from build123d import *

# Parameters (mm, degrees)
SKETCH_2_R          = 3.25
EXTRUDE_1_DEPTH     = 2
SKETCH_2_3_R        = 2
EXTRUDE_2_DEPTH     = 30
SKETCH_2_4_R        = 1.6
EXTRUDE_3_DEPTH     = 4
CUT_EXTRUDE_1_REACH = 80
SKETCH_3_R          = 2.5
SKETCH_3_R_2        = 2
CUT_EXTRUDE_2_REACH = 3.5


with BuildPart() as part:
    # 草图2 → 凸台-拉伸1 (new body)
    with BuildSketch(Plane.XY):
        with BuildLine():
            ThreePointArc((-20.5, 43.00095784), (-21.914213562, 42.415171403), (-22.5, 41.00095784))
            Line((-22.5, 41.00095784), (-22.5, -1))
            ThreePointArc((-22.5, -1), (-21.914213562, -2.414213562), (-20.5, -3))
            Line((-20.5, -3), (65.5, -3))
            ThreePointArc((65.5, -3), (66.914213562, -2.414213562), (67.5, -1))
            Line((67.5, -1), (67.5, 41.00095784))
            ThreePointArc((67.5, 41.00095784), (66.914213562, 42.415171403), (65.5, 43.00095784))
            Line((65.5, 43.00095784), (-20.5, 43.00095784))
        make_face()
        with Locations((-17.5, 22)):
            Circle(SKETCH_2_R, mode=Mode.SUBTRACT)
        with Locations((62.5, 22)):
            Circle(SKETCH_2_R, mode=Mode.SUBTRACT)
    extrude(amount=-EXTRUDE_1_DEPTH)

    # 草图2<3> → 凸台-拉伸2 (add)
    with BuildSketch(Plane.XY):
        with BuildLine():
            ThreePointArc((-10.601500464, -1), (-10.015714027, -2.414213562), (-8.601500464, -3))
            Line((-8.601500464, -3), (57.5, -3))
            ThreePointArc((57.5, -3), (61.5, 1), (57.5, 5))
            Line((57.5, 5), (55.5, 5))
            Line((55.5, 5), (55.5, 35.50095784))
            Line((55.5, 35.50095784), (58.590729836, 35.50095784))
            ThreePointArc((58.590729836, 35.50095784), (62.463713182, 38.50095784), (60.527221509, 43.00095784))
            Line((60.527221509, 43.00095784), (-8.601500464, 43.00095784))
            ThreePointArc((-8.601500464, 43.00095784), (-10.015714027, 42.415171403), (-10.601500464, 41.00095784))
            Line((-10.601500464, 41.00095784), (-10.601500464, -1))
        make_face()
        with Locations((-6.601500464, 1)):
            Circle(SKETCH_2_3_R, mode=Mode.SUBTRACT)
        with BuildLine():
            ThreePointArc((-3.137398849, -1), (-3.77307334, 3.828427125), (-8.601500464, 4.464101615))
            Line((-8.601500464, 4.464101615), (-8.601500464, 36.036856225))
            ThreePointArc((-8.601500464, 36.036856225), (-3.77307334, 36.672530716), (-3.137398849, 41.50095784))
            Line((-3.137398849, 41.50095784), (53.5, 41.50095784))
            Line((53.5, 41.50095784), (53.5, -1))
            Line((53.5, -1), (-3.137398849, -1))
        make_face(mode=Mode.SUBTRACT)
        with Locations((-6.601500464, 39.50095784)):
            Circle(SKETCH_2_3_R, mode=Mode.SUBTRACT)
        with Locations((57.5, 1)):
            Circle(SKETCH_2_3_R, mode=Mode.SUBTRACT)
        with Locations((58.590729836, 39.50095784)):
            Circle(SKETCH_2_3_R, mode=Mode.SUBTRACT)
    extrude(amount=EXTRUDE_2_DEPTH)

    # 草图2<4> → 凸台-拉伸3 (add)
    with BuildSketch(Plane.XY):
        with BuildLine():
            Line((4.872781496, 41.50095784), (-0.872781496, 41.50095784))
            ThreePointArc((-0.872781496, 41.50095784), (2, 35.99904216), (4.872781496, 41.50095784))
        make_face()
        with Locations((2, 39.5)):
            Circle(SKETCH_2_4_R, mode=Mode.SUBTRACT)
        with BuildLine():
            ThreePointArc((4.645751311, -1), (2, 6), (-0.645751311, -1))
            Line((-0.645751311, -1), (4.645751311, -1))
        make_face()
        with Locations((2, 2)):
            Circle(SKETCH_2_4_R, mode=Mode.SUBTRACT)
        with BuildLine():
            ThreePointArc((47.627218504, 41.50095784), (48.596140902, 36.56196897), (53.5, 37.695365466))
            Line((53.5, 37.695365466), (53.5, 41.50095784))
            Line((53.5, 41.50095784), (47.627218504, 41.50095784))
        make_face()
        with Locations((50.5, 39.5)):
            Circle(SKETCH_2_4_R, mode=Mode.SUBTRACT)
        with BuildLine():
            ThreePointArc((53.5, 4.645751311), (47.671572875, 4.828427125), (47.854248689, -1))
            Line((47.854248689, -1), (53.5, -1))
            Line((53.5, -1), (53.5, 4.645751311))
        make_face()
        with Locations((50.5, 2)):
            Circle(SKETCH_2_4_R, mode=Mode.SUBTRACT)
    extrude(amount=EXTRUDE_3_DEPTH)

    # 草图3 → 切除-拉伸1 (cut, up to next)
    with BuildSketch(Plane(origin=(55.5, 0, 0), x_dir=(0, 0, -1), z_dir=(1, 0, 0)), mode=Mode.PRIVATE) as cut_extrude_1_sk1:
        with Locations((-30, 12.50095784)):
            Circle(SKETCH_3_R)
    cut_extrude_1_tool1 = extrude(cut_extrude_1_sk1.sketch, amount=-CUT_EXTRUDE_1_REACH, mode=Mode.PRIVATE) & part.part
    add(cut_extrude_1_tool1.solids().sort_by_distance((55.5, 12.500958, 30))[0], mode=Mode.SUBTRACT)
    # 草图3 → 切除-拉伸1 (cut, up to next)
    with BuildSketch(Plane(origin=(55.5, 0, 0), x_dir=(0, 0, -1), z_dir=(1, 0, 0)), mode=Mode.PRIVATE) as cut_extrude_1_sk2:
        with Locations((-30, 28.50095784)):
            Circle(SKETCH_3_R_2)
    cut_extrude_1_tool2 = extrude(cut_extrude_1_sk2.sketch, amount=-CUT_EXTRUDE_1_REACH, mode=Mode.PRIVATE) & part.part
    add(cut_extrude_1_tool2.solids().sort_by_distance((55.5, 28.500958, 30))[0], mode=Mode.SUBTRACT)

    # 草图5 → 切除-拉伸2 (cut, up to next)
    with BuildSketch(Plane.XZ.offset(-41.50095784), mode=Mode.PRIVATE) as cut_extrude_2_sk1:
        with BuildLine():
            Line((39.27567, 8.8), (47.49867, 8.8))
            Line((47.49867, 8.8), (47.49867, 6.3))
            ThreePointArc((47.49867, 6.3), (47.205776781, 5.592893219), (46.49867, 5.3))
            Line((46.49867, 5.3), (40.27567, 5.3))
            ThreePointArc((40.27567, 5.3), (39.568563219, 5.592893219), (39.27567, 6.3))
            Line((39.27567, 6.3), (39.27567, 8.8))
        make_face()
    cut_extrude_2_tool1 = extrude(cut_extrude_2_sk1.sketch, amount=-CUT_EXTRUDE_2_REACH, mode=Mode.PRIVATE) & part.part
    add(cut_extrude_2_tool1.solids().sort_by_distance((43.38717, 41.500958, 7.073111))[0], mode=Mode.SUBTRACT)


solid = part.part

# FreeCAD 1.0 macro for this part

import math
import FreeCAD as App
import Part
import Sketcher
from FreeCAD import Vector

doc = App.newDocument("Part")
body = doc.addObject("PartDesign::Body", "Body")

sketch1 = doc.addObject("Sketcher::SketchObject", "Sketch")
body.addObject(sketch1)
sketch1.AttachmentSupport = (doc.XY_Plane, [""])
sketch1.MapMode = "FlatFace"
sketch1.addGeometry([
    Part.ArcOfCircle(Part.Circle(Vector(-20.5, 41, 0), Vector(0, 0, 1), 2), math.radians(90), math.radians(180)),
    Part.LineSegment(Vector(-22.5, 41, 0), Vector(-22.5, -1, 0)),
    Part.ArcOfCircle(Part.Circle(Vector(-20.5, -1, 0), Vector(0, 0, 1), 2), math.radians(-180), math.radians(-90)),
    Part.LineSegment(Vector(-20.5, -3, 0), Vector(65.5, -3, 0)),
    Part.ArcOfCircle(Part.Circle(Vector(65.5, -1, 0), Vector(0, 0, 1), 2), math.radians(-90), math.radians(0)),
    Part.LineSegment(Vector(67.5, -1, 0), Vector(67.5, 41, 0)),
    Part.ArcOfCircle(Part.Circle(Vector(65.5, 41, 0), Vector(0, 0, 1), 2), math.radians(0), math.radians(90)),
    Part.LineSegment(Vector(65.5, 43, 0), Vector(-20.5, 43, 0)),
    Part.Circle(Vector(-17.5, 22, 0), Vector(0, 0, 1), 3.2),
    Part.Circle(Vector(62.5, 22, 0), Vector(0, 0, 1), 3.2),
], False)
sketch1.addConstraint([
    Sketcher.Constraint("Tangent", 0, 2, 1, 1),
    Sketcher.Constraint("Tangent", 1, 2, 2, 1),
    Sketcher.Constraint("Tangent", 2, 2, 3, 1),
    Sketcher.Constraint("Tangent", 3, 2, 4, 1),
    Sketcher.Constraint("Tangent", 4, 2, 5, 1),
    Sketcher.Constraint("Tangent", 5, 2, 6, 1),
    Sketcher.Constraint("Tangent", 6, 2, 7, 1),
    Sketcher.Constraint("Tangent", 7, 2, 0, 1),
    Sketcher.Constraint("Vertical", 1),
    Sketcher.Constraint("Horizontal", 3),
    Sketcher.Constraint("Vertical", 5),
    Sketcher.Constraint("Horizontal", 7),
    Sketcher.Constraint("Equal", 0, 2),
    Sketcher.Constraint("Equal", 2, 4),
    Sketcher.Constraint("Equal", 4, 6),
    Sketcher.Constraint("Equal", 8, 9),
    Sketcher.Constraint("Horizontal", 8, 3, 9, 3),
    Sketcher.Constraint("Radius", 0, 2.0),
    Sketcher.Constraint("Diameter", 8, 6.5),
    Sketcher.Constraint("DistanceX", 3, 1, 3, 2, 86.0),
    Sketcher.Constraint("DistanceY", 2, 3, -1, 1, 1.0),
    Sketcher.Constraint("DistanceY", -1, 1, 8, 3, 22.0),
    Sketcher.Constraint("DistanceX", 0, 3, 8, 3, 3.0),
    Sketcher.Constraint("DistanceX", 9, 3, 6, 3, 3.0),
    Sketcher.Constraint("DistanceX", 0, 3, -1, 1, 20.5),
    Sketcher.Constraint("DistanceY", 1, 2, 1, 1, 42.000958),
])
pad1 = doc.addObject("PartDesign::Pad", "Pad")
body.addObject(pad1)
pad1.Profile = sketch1
pad1.Length = 2
pad1.Reversed = True

sketch2 = doc.addObject("Sketcher::SketchObject", "Sketch001")
body.addObject(sketch2)
sketch2.AttachmentSupport = (doc.XY_Plane, [""])
sketch2.MapMode = "FlatFace"
sketch2.addGeometry([
    Part.ArcOfCircle(Part.Circle(Vector(-8.6, -1, 0), Vector(0, 0, 1), 2), math.radians(180), math.radians(270)),
    Part.LineSegment(Vector(-8.6, -3, 0), Vector(57.5, -3, 0)),
    Part.ArcOfCircle(Part.Circle(Vector(57.5, 1, 0), Vector(0, 0, 1), 4), math.radians(-90), math.radians(90)),
    Part.LineSegment(Vector(57.5, 5, 0), Vector(55.5, 5, 0)),
    Part.LineSegment(Vector(55.5, 5, 0), Vector(55.5, 35.5, 0)),
    Part.LineSegment(Vector(55.5, 35.5, 0), Vector(58.6, 35.5, 0)),
    Part.ArcOfCircle(Part.Circle(Vector(58.6, 39.5, 0), Vector(0, 0, 1), 4), math.radians(-90), math.radians(61)),
    Part.LineSegment(Vector(60.5, 43, 0), Vector(-8.6, 43, 0)),
    Part.ArcOfCircle(Part.Circle(Vector(-8.6, 41, 0), Vector(0, 0, 1), 2), math.radians(90), math.radians(180)),
    Part.LineSegment(Vector(-10.6, 41, 0), Vector(-10.6, -1, 0)),
    Part.Circle(Vector(-6.6, 1, 0), Vector(0, 0, 1), 2),
    Part.Circle(Vector(57.5, 1, 0), Vector(0, 0, 1), 2),
    Part.LineSegment(Vector(53.5, -1, 0), Vector(-3.1, -1, 0)),
    Part.ArcOfCircle(Part.Circle(Vector(-6.6, 1, 0), Vector(0, 0, 1), 4), math.radians(-30), math.radians(120)),
    Part.LineSegment(Vector(-8.6, 4.5, 0), Vector(-8.6, 36, 0)),
    Part.ArcOfCircle(Part.Circle(Vector(-6.6, 39.5, 0), Vector(0, 0, 1), 4), math.radians(-120), math.radians(30)),
    Part.LineSegment(Vector(-3.1, 41.5, 0), Vector(53.5, 41.5, 0)),
    Part.LineSegment(Vector(53.5, 41.5, 0), Vector(53.5, -1, 0)),
    Part.Circle(Vector(-6.6, 39.5, 0), Vector(0, 0, 1), 2),
    Part.Circle(Vector(58.6, 39.5, 0), Vector(0, 0, 1), 2),
], False)
sketch2.addConstraint([
    Sketcher.Constraint("Tangent", 0, 2, 1, 1),
    Sketcher.Constraint("Tangent", 1, 2, 2, 1),
    Sketcher.Constraint("Tangent", 2, 2, 3, 1),
    Sketcher.Constraint("Coincident", 3, 2, 4, 1),
    Sketcher.Constraint("Coincident", 4, 2, 5, 1),
    Sketcher.Constraint("Tangent", 5, 2, 6, 1),
    Sketcher.Constraint("Coincident", 6, 2, 7, 1),
    Sketcher.Constraint("Tangent", 7, 2, 8, 1),
    Sketcher.Constraint("Tangent", 8, 2, 9, 1),
    Sketcher.Constraint("Tangent", 9, 2, 0, 1),
    Sketcher.Constraint("Coincident", 12, 2, 13, 1),
    Sketcher.Constraint("Coincident", 13, 2, 14, 1),
    Sketcher.Constraint("Coincident", 14, 2, 15, 1),
    Sketcher.Constraint("Coincident", 15, 2, 16, 1),
    Sketcher.Constraint("Coincident", 16, 2, 17, 1),
    Sketcher.Constraint("Coincident", 17, 2, 12, 1),
    Sketcher.Constraint("Horizontal", 1),
    Sketcher.Constraint("Horizontal", 3),
    Sketcher.Constraint("Vertical", 4),
    Sketcher.Constraint("Horizontal", 5),
    Sketcher.Constraint("Horizontal", 7),
    Sketcher.Constraint("Vertical", 9),
    Sketcher.Constraint("Horizontal", 12),
    Sketcher.Constraint("Vertical", 14),
    Sketcher.Constraint("Horizontal", 16),
    Sketcher.Constraint("Vertical", 17),
    Sketcher.Constraint("Coincident", 11, 3, 2, 3),
    Sketcher.Constraint("Coincident", 13, 3, 10, 3),
    Sketcher.Constraint("Coincident", 18, 3, 15, 3),
    Sketcher.Constraint("Coincident", 19, 3, 6, 3),
    Sketcher.Constraint("Equal", 2, 6),
    Sketcher.Constraint("Equal", 0, 8),
    Sketcher.Constraint("Equal", 8, 10),
    Sketcher.Constraint("Equal", 10, 11),
    Sketcher.Constraint("Equal", 6, 13),
    Sketcher.Constraint("Equal", 13, 15),
    Sketcher.Constraint("Equal", 11, 18),
    Sketcher.Constraint("Equal", 18, 19),
    Sketcher.Constraint("Horizontal", 2, 3, 10, 3),
    Sketcher.Constraint("Horizontal", 6, 3, 15, 3),
    Sketcher.Constraint("Horizontal", 9, 2, 12, 2),
    Sketcher.Constraint("Vertical", 13, 3, 15, 3),
    Sketcher.Constraint("Vertical", 7, 2, 13, 2),
    Sketcher.Constraint("Vertical", 12, 2, 15, 2),
    Sketcher.Constraint("Diameter", 10, 4.0),
    Sketcher.Constraint("Radius", 2, 4.0),
    Sketcher.Constraint("DistanceX", 3, 2, 3, 1, 2.0),
    Sketcher.Constraint("DistanceY", 0, 3, -1, 1, 1.0),
    Sketcher.Constraint("DistanceX", 0, 3, 10, 3, 2.0),
    Sketcher.Constraint("DistanceX", 16, 2, 4, 2, 2.0),
    Sketcher.Constraint("DistanceX", -1, 1, 2, 3, 57.5),
    Sketcher.Constraint("DistanceY", 6, 3, 8, 3, 1.5),
    Sketcher.Constraint("DistanceX", 1, 1, 1, 2, 66.1015),
    Sketcher.Constraint("DistanceX", 5, 1, 5, 2, 3.09073),
    Sketcher.Constraint("DistanceY", 4, 1, 4, 2, 30.500958),
])
pad2 = doc.addObject("PartDesign::Pad", "Pad001")
body.addObject(pad2)
pad2.Profile = sketch2
pad2.Length = 30

sketch3 = doc.addObject("Sketcher::SketchObject", "Sketch002")
body.addObject(sketch3)
sketch3.AttachmentSupport = (doc.XY_Plane, [""])
sketch3.MapMode = "FlatFace"
sketch3.addGeometry([
    Part.LineSegment(Vector(4.9, 41.5, 0), Vector(-0.9, 41.5, 0)),
    Part.ArcOfCircle(Part.Circle(Vector(2, 39.5, 0), Vector(0, 0, 1), 3.5), math.radians(145), math.radians(395)),
    Part.Circle(Vector(2, 39.5, 0), Vector(0, 0, 1), 1.6),
    Part.ArcOfCircle(Part.Circle(Vector(2, 2, 0), Vector(0, 0, 1), 4), math.radians(-49), math.radians(229)),
    Part.LineSegment(Vector(-0.6, -1, 0), Vector(4.6, -1, 0)),
    Part.Circle(Vector(2, 2, 0), Vector(0, 0, 1), 1.6),
    Part.ArcOfCircle(Part.Circle(Vector(50.5, 39.5, 0), Vector(0, 0, 1), 3.5), math.radians(145), math.radians(329)),
    Part.LineSegment(Vector(53.5, 37.7, 0), Vector(53.5, 41.5, 0)),
    Part.LineSegment(Vector(53.5, 41.5, 0), Vector(47.6, 41.5, 0)),
    Part.Circle(Vector(50.5, 39.5, 0), Vector(0, 0, 1), 1.6),
    Part.ArcOfCircle(Part.Circle(Vector(50.5, 2, 0), Vector(0, 0, 1), 4), math.radians(41), math.radians(229)),
    Part.LineSegment(Vector(47.9, -1, 0), Vector(53.5, -1, 0)),
    Part.LineSegment(Vector(53.5, -1, 0), Vector(53.5, 4.6, 0)),
    Part.Circle(Vector(50.5, 2, 0), Vector(0, 0, 1), 1.6),
], False)
sketch3.addConstraint([
    Sketcher.Constraint("Coincident", 0, 1, 1, 2),
    Sketcher.Constraint("Coincident", 1, 1, 0, 2),
    Sketcher.Constraint("Coincident", 3, 1, 4, 2),
    Sketcher.Constraint("Coincident", 4, 1, 3, 2),
    Sketcher.Constraint("Coincident", 6, 2, 7, 1),
    Sketcher.Constraint("Coincident", 7, 2, 8, 1),
    Sketcher.Constraint("Coincident", 8, 2, 6, 1),
    Sketcher.Constraint("Coincident", 10, 2, 11, 1),
    Sketcher.Constraint("Coincident", 11, 2, 12, 1),
    Sketcher.Constraint("Coincident", 12, 2, 10, 1),
    Sketcher.Constraint("Horizontal", 0),
    Sketcher.Constraint("Horizontal", 4),
    Sketcher.Constraint("Vertical", 7),
    Sketcher.Constraint("Horizontal", 8),
    Sketcher.Constraint("Horizontal", 11),
    Sketcher.Constraint("Vertical", 12),
    Sketcher.Constraint("Coincident", 2, 3, 1, 3),
    Sketcher.Constraint("Coincident", 5, 3, 3, 3),
    Sketcher.Constraint("Coincident", 9, 3, 6, 3),
    Sketcher.Constraint("Coincident", 13, 3, 10, 3),
    Sketcher.Constraint("Equal", 2, 5),
    Sketcher.Constraint("Equal", 1, 6),
    Sketcher.Constraint("Equal", 5, 9),
    Sketcher.Constraint("Equal", 3, 10),
    Sketcher.Constraint("Equal", 9, 13),
    Sketcher.Constraint("Horizontal", 2, 3, 6, 3),
    Sketcher.Constraint("Horizontal", 5, 3, 10, 3),
    Sketcher.Constraint("Horizontal", 1, 1, 7, 2),
    Sketcher.Constraint("Horizontal", 4, 1, 10, 2),
    Sketcher.Constraint("Vertical", 2, 3, 3, 3),
    Sketcher.Constraint("Vertical", 9, 3, 10, 3),
    Sketcher.Constraint("Vertical", 7, 2, 11, 2),
    Sketcher.Constraint("Equal", 11, 12),
    Sketcher.Constraint("Radius", 3, 4.0),
    Sketcher.Constraint("Diameter", 2, 3.2),
    Sketcher.Constraint("DistanceX", -1, 1, 1, 3, 2.0),
    Sketcher.Constraint("DistanceY", -1, 1, 3, 3, 2.0),
    Sketcher.Constraint("DistanceY", 3, 1, -1, 1, 1.0),
    Sketcher.Constraint("DistanceY", -1, 1, 1, 3, 39.5),
    Sketcher.Constraint("DistanceX", -1, 1, 6, 3, 50.5),
    Sketcher.Constraint("Radius", 1, 3.500958),
    Sketcher.Constraint("DistanceX", 8, 2, 8, 1, 5.872781),
])
pad3 = doc.addObject("PartDesign::Pad", "Pad002")
body.addObject(pad3)
pad3.Profile = sketch3
pad3.Length = 4

sketch4 = doc.addObject("Sketcher::SketchObject", "Sketch003")
body.addObject(sketch4)
sketch4.AttachmentSupport = (doc.YZ_Plane, [""])
sketch4.MapMode = "FlatFace"
sketch4.AttachmentOffset = App.Placement(Vector(0, 0, 55.5), App.Rotation())
sketch4.addGeometry(Part.Circle(Vector(12.5, 30, 0), Vector(0, 0, 1), 2.5), False)
sketch4.addConstraint([
    Sketcher.Constraint("Diameter", 0, 5.0),
    Sketcher.Constraint("DistanceY", -1, 1, 0, 3, 30.0),
    Sketcher.Constraint("DistanceX", -1, 1, 0, 3, 12.500958),
])
pocket1 = doc.addObject("PartDesign::Pocket", "Pocket")
body.addObject(pocket1)
pocket1.Profile = sketch4
pocket1.Type = "UpToFirst"

sketch5 = doc.addObject("Sketcher::SketchObject", "Sketch004")
body.addObject(sketch5)
sketch5.AttachmentSupport = (doc.YZ_Plane, [""])
sketch5.MapMode = "FlatFace"
sketch5.AttachmentOffset = App.Placement(Vector(0, 0, 55.5), App.Rotation())
sketch5.addGeometry(Part.Circle(Vector(28.5, 30, 0), Vector(0, 0, 1), 2), False)
sketch5.addConstraint([
    Sketcher.Constraint("Diameter", 0, 4.0),
    Sketcher.Constraint("DistanceY", -1, 1, 0, 3, 30.0),
    Sketcher.Constraint("DistanceX", -1, 1, 0, 3, 28.500958),
])
pocket2 = doc.addObject("PartDesign::Pocket", "Pocket001")
body.addObject(pocket2)
pocket2.Profile = sketch5
pocket2.Type = "UpToFirst"

sketch6 = doc.addObject("Sketcher::SketchObject", "Sketch005")
body.addObject(sketch6)
sketch6.AttachmentSupport = (doc.XZ_Plane, [""])
sketch6.MapMode = "FlatFace"
sketch6.AttachmentOffset = App.Placement(Vector(0, 0, -41.500958), App.Rotation())
sketch6.addGeometry([
    Part.LineSegment(Vector(47.5, 8.8, 0), Vector(39.3, 8.8, 0)),
    Part.LineSegment(Vector(39.3, 8.8, 0), Vector(39.3, 6.3, 0)),
    Part.ArcOfCircle(Part.Circle(Vector(40.3, 6.3, 0), Vector(0, 0, 1), 1), math.radians(-180), math.radians(-90)),
    Part.LineSegment(Vector(40.3, 5.3, 0), Vector(46.5, 5.3, 0)),
    Part.ArcOfCircle(Part.Circle(Vector(46.5, 6.3, 0), Vector(0, 0, 1), 1), math.radians(-90), math.radians(0)),
    Part.LineSegment(Vector(47.5, 6.3, 0), Vector(47.5, 8.8, 0)),
], False)
sketch6.addConstraint([
    Sketcher.Constraint("Coincident", 0, 2, 1, 1),
    Sketcher.Constraint("Tangent", 1, 2, 2, 1),
    Sketcher.Constraint("Tangent", 2, 2, 3, 1),
    Sketcher.Constraint("Tangent", 3, 2, 4, 1),
    Sketcher.Constraint("Tangent", 4, 2, 5, 1),
    Sketcher.Constraint("Coincident", 5, 2, 0, 1),
    Sketcher.Constraint("Horizontal", 0),
    Sketcher.Constraint("Vertical", 1),
    Sketcher.Constraint("Horizontal", 3),
    Sketcher.Constraint("Vertical", 5),
    Sketcher.Constraint("Equal", 2, 4),
    Sketcher.Constraint("Radius", 2, 1.0),
    Sketcher.Constraint("DistanceY", 1, 2, 1, 1, 2.5),
    Sketcher.Constraint("DistanceY", -1, 1, 2, 3, 6.3),
    Sketcher.Constraint("DistanceX", 0, 2, 0, 1, 8.223),
    Sketcher.Constraint("DistanceX", -1, 1, 2, 3, 40.27567),
])
pocket3 = doc.addObject("PartDesign::Pocket", "Pocket002")
body.addObject(pocket3)
pocket3.Profile = sketch6
pocket3.Type = "UpToFirst"

doc.recompute()
